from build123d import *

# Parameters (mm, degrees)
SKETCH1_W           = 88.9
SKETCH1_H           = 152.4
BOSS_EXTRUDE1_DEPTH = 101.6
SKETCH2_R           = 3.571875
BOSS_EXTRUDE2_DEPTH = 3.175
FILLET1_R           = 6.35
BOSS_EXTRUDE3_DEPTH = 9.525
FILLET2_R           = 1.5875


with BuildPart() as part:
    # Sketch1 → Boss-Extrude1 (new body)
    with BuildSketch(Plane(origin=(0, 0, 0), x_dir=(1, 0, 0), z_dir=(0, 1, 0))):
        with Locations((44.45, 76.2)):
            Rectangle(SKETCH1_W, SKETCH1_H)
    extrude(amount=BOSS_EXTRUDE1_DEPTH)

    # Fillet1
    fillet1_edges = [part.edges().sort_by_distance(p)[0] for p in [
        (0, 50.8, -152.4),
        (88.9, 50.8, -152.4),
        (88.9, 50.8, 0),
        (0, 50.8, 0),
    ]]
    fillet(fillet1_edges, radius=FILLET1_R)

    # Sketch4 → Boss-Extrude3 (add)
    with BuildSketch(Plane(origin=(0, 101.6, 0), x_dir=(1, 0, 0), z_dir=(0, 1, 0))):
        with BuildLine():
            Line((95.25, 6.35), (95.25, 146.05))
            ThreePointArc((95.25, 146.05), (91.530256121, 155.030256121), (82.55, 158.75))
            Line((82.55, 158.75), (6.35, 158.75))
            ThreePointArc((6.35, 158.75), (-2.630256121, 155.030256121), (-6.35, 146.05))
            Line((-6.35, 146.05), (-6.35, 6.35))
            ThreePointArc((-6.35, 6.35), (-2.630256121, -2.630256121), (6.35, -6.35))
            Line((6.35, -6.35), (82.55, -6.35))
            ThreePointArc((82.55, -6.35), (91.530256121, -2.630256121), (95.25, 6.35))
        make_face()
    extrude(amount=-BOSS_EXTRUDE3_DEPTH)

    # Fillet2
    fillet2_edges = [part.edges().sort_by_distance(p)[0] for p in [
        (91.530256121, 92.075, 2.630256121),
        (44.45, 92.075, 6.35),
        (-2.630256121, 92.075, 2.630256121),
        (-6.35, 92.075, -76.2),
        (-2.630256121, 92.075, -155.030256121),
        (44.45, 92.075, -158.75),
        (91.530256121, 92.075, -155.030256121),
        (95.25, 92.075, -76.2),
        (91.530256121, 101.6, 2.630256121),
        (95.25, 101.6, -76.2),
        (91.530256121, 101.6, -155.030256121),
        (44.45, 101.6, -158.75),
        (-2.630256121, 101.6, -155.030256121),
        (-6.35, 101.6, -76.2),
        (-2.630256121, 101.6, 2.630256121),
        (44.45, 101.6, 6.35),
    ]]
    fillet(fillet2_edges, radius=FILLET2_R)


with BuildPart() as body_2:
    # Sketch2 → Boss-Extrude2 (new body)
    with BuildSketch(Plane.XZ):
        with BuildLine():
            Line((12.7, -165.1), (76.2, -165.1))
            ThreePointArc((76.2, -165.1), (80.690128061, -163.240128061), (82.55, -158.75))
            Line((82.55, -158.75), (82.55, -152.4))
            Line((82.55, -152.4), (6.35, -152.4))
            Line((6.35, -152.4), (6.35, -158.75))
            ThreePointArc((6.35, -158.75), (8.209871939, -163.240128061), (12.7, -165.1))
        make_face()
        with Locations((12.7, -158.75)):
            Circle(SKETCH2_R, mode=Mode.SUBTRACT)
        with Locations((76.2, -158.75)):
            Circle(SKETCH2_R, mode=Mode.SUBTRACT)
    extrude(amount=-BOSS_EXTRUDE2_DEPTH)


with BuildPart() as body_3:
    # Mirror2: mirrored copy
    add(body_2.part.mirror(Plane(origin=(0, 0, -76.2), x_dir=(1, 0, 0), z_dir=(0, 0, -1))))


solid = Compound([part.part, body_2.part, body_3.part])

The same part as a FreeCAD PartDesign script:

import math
import FreeCAD as App
import Part
import Sketcher
from FreeCAD import Vector
Q = App.Units.Quantity


def edges_at(feature, points):
    """Names of the edges that pass closest to the given points."""
    edges = feature.Shape.Edges
    near = lambda p: min(range(len(edges)), key=lambda i: edges[i].distToShape(Part.Vertex(*p))[0])
    return sorted({f"Edge{near(p) + 1}" for p in points})


def add_polygon(sketch, points):
    """Adds a closed chain of lines whose ends are joined by coincident constraints."""
    first, n = sketch.GeometryCount, len(points)
    for a, b in zip(points, points[1:] + points[:1]):
        sketch.addGeometry(Part.LineSegment(App.Vector(*a, 0), App.Vector(*b, 0)), False)
    for i in range(n):
        sketch.addConstraint(Sketcher.Constraint("Coincident", first + i, 2, first + (i + 1) % n, 1))

doc = App.newDocument("Part")
body = doc.addObject("PartDesign::Body", "Body")

# Sketch on XZ plane
sketch1 = doc.addObject("Sketcher::SketchObject", "Sketch")
body.addObject(sketch1)
sketch1.AttachmentSupport = (doc.XZ_Plane, [""])
sketch1.MapMode = "FlatFace"
add_polygon(sketch1, [(0, -152.4), (0, 0), (88.9, 0), (88.9, -152.4)])  # lines 0-3
sketch1.addConstraint(Sketcher.Constraint("Vertical", 0))
sketch1.addConstraint(Sketcher.Constraint("Horizontal", 1))
sketch1.addConstraint(Sketcher.Constraint("Vertical", 2))
sketch1.addConstraint(Sketcher.Constraint("Horizontal", 3))
sketch1.addConstraint(Sketcher.Constraint("Coincident", 0, 2, -1, 1))
sketch1.addConstraint(Sketcher.Constraint("DistanceY", 0, 1, 0, 2, Q("6 in")))
sketch1.addConstraint(Sketcher.Constraint("DistanceX", 1, 1, 1, 2, Q("3.5 in")))
pad1 = doc.addObject("PartDesign::Pad", "Pad")
body.addObject(pad1)
pad1.Profile = sketch1
pad1.Length = Q("4 in")
pad1.Reversed = True
doc.recompute()

fillet = doc.addObject("PartDesign::Fillet", "Fillet")
body.addObject(fillet)
fillet.Base = (pad1, edges_at(pad1, [
    (0, 50.8, -152.4),
    (88.9, 50.8, -152.4),
    (88.9, 50.8, 0),
    (0, 50.8, 0),
]))
fillet.Radius = Q("0.25 in")

# Sketch on XZ plane
sketch2 = doc.addObject("Sketcher::SketchObject", "Sketch001")
body.addObject(sketch2)
sketch2.AttachmentSupport = (doc.XZ_Plane, [""])
sketch2.MapMode = "FlatFace"
sketch2.AttachmentOffset = App.Placement(Vector(0, 0, -4 * 25.4), App.Rotation())
sketch2.addGeometry(Part.LineSegment(Vector(95.25, -6.35, 0), Vector(95.25, -146.05, 0)), False)
sketch2.addGeometry(Part.ArcOfCircle(Part.Circle(Vector(82.55, -146.05, 0), Vector(0, 0, 1), 12.7), math.radians(-90), math.radians(0)), False)
sketch2.addGeometry(Part.LineSegment(Vector(82.55, -158.75, 0), Vector(6.35, -158.75, 0)), False)
sketch2.addGeometry(Part.ArcOfCircle(Part.Circle(Vector(6.35, -146.05, 0), Vector(0, 0, 1), 12.7), math.radians(180), math.radians(270)), False)
sketch2.addGeometry(Part.LineSegment(Vector(-6.35, -146.05, 0), Vector(-6.35, -6.35, 0)), False)
sketch2.addGeometry(Part.ArcOfCircle(Part.Circle(Vector(6.35, -6.35, 0), Vector(0, 0, 1), 12.7), math.radians(90), math.radians(180)), False)
sketch2.addGeometry(Part.LineSegment(Vector(6.35, 6.35, 0), Vector(82.55, 6.35, 0)), False)
sketch2.addGeometry(Part.ArcOfCircle(Part.Circle(Vector(82.55, -6.35, 0), Vector(0, 0, 1), 12.7), math.radians(0), math.radians(90)), False)
sketch2.addConstraint(Sketcher.Constraint("Tangent", 0, 2, 1, 2))
sketch2.addConstraint(Sketcher.Constraint("Tangent", 1, 1, 2, 1))
sketch2.addConstraint(Sketcher.Constraint("Tangent", 2, 2, 3, 2))
sketch2.addConstraint(Sketcher.Constraint("Tangent", 3, 1, 4, 1))
sketch2.addConstraint(Sketcher.Constraint("Tangent", 4, 2, 5, 2))
sketch2.addConstraint(Sketcher.Constraint("Tangent", 5, 1, 6, 1))
sketch2.addConstraint(Sketcher.Constraint("Tangent", 6, 2, 7, 2))
sketch2.addConstraint(Sketcher.Constraint("Tangent", 7, 1, 0, 1))
sketch2.addConstraint(Sketcher.Constraint("Vertical", 0))
sketch2.addConstraint(Sketcher.Constraint("Horizontal", 2))
sketch2.addConstraint(Sketcher.Constraint("Vertical", 4))
sketch2.addConstraint(Sketcher.Constraint("Horizontal", 6))
sketch2.addConstraint(Sketcher.Constraint("Equal", 1, 3))
sketch2.addConstraint(Sketcher.Constraint("Equal", 3, 5))
sketch2.addConstraint(Sketcher.Constraint("Equal", 5, 7))
sketch2.addConstraint(Sketcher.Constraint("Symmetric", 4, 2, 5, 1, -1, 1))
sketch2.addConstraint(Sketcher.Constraint("Radius", 1, Q("0.5 in")))
sketch2.addConstraint(Sketcher.Constraint("DistanceX", 2, 2, 2, 1, Q("3 in")))
sketch2.addConstraint(Sketcher.Constraint("DistanceY", 0, 2, 0, 1, Q("5.5 in")))
pad2 = doc.addObject("PartDesign::Pad", "Pad001")
body.addObject(pad2)
pad2.Profile = sketch2
pad2.Length = Q("0.375 in")
doc.recompute()

fillet2 = doc.addObject("PartDesign::Fillet", "Fillet001")
body.addObject(fillet2)
fillet2.Base = (pad2, edges_at(pad2, [
    (91.53, 92.075, 2.63),
    (44.45, 92.075, 6.35),
    (-2.63, 92.075, 2.63),
    (-6.35, 92.075, -76.2),
    (-2.63, 92.075, -155.03),
    (44.45, 92.075, -158.75),
    (91.53, 92.075, -155.03),
    (95.25, 92.075, -76.2),
    (91.53, 101.6, 2.63),
    (95.25, 101.6, -76.2),
    (91.53, 101.6, -155.03),
    (44.45, 101.6, -158.75),
    (-2.63, 101.6, -155.03),
    (-6.35, 101.6, -76.2),
    (-2.63, 101.6, 2.63),
    (44.45, 101.6, 6.35),
]))
fillet2.Radius = Q("0.0625 in")
body2 = doc.addObject("PartDesign::Body", "Body001")

# Sketch on XZ plane
sketch3 = doc.addObject("Sketcher::SketchObject", "Sketch002")
body2.addObject(sketch3)
sketch3.AttachmentSupport = (doc.getObject("XZ_Plane001"), [""])
sketch3.MapMode = "FlatFace"
sketch3.addGeometry(Part.LineSegment(Vector(12.7, -165.1, 0), Vector(76.2, -165.1, 0)), False)
sketch3.addGeometry(Part.ArcOfCircle(Part.Circle(Vector(76.2, -158.75, 0), Vector(0, 0, 1), 6.35), math.radians(-90), math.radians(0)), False)
sketch3.addGeometry(Part.LineSegment(Vector(82.55, -158.75, 0), Vector(82.55, -152.4, 0)), False)
sketch3.addGeometry(Part.LineSegment(Vector(82.55, -152.4, 0), Vector(6.35, -152.4, 0)), False)
sketch3.addGeometry(Part.LineSegment(Vector(6.35, -152.4, 0), Vector(6.35, -158.75, 0)), False)
sketch3.addGeometry(Part.ArcOfCircle(Part.Circle(Vector(12.7, -158.75, 0), Vector(0, 0, 1), 6.35), math.radians(180), math.radians(270)), False)
sketch3.addGeometry(Part.Circle(Vector(12.7, -158.75, 0), Vector(0, 0, 1), 3.571875), False)
sketch3.addGeometry(Part.Circle(Vector(76.2, -158.75, 0), Vector(0, 0, 1), 3.571875), False)
sketch3.addConstraint(Sketcher.Constraint("Tangent", 0, 2, 1, 1))
sketch3.addConstraint(Sketcher.Constraint("Tangent", 1, 2, 2, 1))
sketch3.addConstraint(Sketcher.Constraint("Coincident", 2, 2, 3, 1))
sketch3.addConstraint(Sketcher.Constraint("Coincident", 3, 2, 4, 1))
sketch3.addConstraint(Sketcher.Constraint("Tangent", 4, 2, 5, 1))
sketch3.addConstraint(Sketcher.Constraint("Tangent", 5, 2, 0, 1))
sketch3.addConstraint(Sketcher.Constraint("Horizontal", 0))
sketch3.addConstraint(Sketcher.Constraint("Vertical", 2))
sketch3.addConstraint(Sketcher.Constraint("Horizontal", 3))
sketch3.addConstraint(Sketcher.Constraint("Vertical", 4))
sketch3.addConstraint(Sketcher.Constraint("Coincident", 6, 3, 5, 3))
sketch3.addConstraint(Sketcher.Constraint("Coincident", 7, 3, 1, 3))
sketch3.addConstraint(Sketcher.Constraint("Equal", 1, 5))
sketch3.addConstraint(Sketcher.Constraint("Equal", 6, 7))
sketch3.addConstraint(Sketcher.Constraint("DistanceX", 3, 2, 3, 1, Q("3 in")))
sketch3.addConstraint(Sketcher.Constraint("Radius", 1, Q("0.25 in")))
sketch3.addConstraint(Sketcher.Constraint("Diameter", 6, Q("0.28125 in")))
sketch3.addConstraint(Sketcher.Constraint("DistanceX", -1, 1, 1, 3, Q("3 in")))
sketch3.addConstraint(Sketcher.Constraint("DistanceY", 2, 2, -1, 1, Q("6 in")))
sketch3.addConstraint(Sketcher.Constraint("DistanceY", 2, 1, 2, 2, Q("0.25 in")))
pad3 = doc.addObject("PartDesign::Pad", "Pad002")
body2.addObject(pad3)
pad3.Profile = sketch3
pad3.Length = Q("0.125 in")
pad3.Reversed = True
body3 = doc.addObject("PartDesign::Body", "Body002")
doc.recompute()

mirroring = doc.addObject("Part::Mirroring", "Mirroring")
mirroring.Source = body2
mirroring.Base = Vector(0, 0, -76.2)
mirroring.Normal = Vector(0, 0, -1)
body3.BaseFeature = mirroring
doc.recompute()
mirroring.Visibility = False

doc.recompute()
